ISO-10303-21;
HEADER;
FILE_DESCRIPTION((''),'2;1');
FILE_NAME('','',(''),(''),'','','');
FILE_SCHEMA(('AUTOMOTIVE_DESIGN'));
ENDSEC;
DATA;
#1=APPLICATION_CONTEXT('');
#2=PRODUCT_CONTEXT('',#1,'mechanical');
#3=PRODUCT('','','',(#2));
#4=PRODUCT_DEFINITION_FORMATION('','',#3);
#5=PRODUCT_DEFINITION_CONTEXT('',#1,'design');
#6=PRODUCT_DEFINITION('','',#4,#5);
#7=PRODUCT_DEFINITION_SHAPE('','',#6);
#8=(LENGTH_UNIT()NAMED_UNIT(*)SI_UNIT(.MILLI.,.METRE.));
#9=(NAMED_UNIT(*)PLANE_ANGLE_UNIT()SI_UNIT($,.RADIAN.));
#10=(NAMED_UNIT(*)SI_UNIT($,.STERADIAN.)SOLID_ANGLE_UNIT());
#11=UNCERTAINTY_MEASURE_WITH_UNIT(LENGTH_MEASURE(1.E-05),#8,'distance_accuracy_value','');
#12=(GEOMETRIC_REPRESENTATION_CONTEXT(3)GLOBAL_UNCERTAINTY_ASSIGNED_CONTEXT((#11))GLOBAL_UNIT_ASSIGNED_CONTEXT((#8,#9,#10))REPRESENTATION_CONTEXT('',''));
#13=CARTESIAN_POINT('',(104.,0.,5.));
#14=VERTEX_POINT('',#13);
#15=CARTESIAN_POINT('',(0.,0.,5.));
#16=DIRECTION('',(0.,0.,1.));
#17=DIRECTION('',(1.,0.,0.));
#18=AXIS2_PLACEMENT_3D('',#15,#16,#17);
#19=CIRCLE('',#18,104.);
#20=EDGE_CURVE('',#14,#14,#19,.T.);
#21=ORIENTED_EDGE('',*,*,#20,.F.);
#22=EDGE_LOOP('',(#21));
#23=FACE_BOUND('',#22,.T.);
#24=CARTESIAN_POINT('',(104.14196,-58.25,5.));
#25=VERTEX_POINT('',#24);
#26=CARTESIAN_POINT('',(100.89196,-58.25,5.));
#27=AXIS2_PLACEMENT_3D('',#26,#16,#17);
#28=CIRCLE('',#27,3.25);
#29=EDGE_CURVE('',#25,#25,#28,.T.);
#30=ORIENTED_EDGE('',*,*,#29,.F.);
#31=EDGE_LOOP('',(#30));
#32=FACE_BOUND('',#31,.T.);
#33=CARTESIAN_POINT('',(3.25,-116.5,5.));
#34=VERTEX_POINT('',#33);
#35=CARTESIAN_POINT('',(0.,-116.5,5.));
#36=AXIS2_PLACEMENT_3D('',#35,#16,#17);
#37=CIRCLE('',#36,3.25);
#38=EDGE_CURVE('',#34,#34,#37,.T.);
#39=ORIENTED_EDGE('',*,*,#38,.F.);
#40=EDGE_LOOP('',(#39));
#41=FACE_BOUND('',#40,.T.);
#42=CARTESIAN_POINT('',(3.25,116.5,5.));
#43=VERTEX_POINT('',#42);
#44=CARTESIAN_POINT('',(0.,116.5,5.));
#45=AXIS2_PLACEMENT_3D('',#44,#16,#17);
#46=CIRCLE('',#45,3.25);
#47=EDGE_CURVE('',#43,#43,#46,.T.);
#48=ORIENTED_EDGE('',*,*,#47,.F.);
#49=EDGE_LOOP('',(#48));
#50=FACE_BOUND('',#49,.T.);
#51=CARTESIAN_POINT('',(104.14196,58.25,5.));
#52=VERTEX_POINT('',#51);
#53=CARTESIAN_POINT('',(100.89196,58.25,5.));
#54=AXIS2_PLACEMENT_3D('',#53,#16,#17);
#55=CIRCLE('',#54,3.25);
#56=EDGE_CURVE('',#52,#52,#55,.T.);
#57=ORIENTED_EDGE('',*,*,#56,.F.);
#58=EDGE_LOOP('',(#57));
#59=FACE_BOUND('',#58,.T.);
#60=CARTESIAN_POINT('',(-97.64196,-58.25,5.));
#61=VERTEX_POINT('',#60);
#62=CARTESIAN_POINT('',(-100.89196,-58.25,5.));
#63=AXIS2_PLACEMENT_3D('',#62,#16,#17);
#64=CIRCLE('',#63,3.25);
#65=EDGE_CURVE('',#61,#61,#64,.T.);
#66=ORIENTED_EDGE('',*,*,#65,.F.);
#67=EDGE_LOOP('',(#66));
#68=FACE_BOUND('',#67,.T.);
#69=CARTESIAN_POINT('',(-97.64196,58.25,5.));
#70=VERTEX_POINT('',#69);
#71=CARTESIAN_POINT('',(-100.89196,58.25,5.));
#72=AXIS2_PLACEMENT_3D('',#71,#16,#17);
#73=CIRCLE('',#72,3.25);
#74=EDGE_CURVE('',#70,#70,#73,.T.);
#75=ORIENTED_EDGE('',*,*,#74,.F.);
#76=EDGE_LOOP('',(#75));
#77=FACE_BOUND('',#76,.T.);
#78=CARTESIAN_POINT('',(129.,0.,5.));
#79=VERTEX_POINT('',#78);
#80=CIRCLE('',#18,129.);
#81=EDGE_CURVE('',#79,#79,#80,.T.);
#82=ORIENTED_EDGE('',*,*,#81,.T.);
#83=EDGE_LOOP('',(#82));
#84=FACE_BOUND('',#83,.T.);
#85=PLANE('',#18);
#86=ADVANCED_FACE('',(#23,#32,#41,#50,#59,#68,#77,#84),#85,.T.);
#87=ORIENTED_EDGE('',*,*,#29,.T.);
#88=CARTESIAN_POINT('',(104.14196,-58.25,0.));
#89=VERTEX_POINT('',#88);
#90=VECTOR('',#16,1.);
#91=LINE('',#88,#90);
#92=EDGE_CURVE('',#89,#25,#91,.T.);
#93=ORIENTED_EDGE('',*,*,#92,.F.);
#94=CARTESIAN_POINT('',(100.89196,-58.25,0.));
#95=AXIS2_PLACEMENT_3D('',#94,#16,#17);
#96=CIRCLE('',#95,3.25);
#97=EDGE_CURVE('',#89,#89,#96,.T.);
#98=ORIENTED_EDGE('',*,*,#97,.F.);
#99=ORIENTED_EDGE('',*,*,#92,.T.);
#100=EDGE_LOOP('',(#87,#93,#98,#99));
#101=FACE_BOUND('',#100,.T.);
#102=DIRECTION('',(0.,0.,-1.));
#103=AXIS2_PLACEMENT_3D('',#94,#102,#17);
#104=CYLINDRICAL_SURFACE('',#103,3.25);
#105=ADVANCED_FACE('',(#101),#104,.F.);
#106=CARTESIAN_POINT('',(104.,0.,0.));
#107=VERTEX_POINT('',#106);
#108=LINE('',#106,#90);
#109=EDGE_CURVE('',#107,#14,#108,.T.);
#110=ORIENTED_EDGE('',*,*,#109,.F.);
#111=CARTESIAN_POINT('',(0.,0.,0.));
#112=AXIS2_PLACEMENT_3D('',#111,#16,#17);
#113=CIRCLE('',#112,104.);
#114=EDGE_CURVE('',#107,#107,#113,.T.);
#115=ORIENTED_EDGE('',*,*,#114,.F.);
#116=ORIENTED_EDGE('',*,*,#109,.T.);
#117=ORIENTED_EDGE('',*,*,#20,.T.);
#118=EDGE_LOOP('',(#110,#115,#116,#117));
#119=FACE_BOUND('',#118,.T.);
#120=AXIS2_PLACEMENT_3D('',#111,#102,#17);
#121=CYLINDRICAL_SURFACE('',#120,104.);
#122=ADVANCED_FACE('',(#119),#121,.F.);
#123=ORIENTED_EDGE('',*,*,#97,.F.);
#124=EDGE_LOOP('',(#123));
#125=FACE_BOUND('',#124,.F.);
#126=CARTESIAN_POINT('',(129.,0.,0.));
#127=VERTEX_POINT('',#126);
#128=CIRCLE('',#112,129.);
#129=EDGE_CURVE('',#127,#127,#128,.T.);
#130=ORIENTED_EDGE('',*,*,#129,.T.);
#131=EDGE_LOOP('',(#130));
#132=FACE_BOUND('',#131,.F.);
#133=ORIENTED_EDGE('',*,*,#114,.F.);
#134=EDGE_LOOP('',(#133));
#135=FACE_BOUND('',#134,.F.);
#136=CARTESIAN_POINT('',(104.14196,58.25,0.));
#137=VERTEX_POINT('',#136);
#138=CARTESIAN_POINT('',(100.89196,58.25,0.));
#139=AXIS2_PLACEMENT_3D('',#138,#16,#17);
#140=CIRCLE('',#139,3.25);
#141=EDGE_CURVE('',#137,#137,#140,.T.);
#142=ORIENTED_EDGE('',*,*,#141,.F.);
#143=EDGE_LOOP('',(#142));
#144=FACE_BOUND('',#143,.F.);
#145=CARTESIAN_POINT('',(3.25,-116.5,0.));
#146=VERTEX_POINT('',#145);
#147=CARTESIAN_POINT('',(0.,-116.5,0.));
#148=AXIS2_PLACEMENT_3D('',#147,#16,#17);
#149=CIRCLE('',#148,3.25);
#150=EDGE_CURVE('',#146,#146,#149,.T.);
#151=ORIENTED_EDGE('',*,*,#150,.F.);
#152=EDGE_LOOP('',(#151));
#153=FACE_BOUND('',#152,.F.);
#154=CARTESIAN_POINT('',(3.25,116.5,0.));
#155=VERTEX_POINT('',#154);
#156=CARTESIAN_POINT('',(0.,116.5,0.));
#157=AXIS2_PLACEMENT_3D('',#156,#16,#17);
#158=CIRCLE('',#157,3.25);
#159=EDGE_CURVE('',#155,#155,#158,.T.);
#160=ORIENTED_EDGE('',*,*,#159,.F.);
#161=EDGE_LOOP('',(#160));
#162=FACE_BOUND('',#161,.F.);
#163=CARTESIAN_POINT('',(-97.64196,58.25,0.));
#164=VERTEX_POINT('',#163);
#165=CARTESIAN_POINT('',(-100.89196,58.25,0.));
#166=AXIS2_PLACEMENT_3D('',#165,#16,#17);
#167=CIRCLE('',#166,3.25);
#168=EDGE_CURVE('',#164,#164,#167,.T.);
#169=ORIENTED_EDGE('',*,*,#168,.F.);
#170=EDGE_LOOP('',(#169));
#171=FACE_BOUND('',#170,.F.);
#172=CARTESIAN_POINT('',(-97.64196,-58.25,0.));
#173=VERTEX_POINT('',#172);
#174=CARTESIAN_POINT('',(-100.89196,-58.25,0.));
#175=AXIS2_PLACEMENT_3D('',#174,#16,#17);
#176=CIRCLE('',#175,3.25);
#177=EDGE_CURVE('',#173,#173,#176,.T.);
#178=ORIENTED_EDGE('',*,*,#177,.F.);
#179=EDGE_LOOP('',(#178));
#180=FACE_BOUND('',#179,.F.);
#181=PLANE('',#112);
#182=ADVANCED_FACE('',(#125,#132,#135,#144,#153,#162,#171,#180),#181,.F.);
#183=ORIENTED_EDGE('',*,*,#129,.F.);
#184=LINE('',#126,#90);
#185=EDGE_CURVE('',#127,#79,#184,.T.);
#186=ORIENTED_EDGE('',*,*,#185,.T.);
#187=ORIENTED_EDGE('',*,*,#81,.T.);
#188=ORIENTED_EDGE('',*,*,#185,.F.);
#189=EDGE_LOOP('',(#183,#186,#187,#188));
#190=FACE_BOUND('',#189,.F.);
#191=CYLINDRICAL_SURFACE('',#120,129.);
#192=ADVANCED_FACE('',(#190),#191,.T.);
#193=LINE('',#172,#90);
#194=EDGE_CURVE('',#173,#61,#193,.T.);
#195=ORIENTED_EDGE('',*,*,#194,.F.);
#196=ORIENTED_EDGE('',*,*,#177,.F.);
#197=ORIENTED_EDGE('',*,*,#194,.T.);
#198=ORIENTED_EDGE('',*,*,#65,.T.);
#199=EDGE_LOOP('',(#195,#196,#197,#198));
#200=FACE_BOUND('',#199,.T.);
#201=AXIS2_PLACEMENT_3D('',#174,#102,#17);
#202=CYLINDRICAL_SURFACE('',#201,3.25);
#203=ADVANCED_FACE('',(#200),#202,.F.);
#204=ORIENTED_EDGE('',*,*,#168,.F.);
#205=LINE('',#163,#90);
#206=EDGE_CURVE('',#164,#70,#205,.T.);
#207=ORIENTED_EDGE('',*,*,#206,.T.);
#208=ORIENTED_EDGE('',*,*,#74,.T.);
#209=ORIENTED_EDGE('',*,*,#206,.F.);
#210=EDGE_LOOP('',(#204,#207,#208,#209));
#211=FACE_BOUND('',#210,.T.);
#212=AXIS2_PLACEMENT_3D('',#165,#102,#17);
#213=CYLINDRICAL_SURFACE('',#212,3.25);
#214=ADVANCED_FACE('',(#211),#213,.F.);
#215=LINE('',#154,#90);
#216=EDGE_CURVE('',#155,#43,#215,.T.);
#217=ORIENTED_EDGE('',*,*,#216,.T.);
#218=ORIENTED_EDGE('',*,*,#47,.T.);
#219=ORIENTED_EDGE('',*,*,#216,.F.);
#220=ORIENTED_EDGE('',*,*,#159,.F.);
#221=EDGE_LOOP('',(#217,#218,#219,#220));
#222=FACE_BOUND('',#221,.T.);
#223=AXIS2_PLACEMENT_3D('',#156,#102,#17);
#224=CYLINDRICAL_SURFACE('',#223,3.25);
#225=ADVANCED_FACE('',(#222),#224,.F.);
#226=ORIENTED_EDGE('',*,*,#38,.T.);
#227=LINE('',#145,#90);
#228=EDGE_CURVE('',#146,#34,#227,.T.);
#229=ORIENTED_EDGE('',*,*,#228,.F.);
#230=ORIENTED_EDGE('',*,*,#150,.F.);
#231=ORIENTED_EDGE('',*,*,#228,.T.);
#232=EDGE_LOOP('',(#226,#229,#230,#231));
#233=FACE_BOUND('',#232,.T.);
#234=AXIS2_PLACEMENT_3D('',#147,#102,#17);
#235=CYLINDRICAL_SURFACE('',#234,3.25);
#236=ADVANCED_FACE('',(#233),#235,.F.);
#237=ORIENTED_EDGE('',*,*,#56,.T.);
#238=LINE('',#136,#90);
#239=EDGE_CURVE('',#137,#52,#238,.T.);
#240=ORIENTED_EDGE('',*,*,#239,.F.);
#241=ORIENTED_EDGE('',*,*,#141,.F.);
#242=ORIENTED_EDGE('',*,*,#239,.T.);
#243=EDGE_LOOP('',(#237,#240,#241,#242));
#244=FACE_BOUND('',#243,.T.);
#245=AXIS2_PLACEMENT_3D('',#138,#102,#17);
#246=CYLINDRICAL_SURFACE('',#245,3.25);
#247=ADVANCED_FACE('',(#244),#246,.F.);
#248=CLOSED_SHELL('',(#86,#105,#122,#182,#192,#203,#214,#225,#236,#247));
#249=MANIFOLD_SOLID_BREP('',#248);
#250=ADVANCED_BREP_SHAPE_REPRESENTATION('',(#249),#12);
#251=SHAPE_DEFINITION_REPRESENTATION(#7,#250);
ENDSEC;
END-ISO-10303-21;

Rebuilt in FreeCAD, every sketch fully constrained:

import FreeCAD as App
import Part
import Sketcher
Q = App.Units.Quantity

doc = App.newDocument("Part")
body = doc.addObject("PartDesign::Body", "Body")

# Sketch on XY plane
sketch1 = doc.addObject("Sketcher::SketchObject", "Sketch")
body.addObject(sketch1)
sketch1.AttachmentSupport = (doc.XY_Plane, [""])
sketch1.MapMode = "FlatFace"
sketch1.addGeometry([
    Part.Circle(App.Vector(0, 0, 0), App.Vector(0, 0, 1), 129),  # 0
    Part.Circle(App.Vector(-100.9, -58.2, 0), App.Vector(0, 0, 1), 3.2),  # 1
    Part.Circle(App.Vector(0, -116.5, 0), App.Vector(0, 0, 1), 3.2),  # 2
    Part.Circle(App.Vector(0, 0, 0), App.Vector(0, 0, 1), 104),  # 3
    Part.Circle(App.Vector(100.9, -58.2, 0), App.Vector(0, 0, 1), 3.2),  # 4
    Part.Circle(App.Vector(-100.9, 58.2, 0), App.Vector(0, 0, 1), 3.2),  # 5
    Part.Circle(App.Vector(100.9, 58.2, 0), App.Vector(0, 0, 1), 3.2),  # 6
    Part.Circle(App.Vector(0, 116.5, 0), App.Vector(0, 0, 1), 3.2),  # 7
], False)
sketch1.addConstraint([
    Sketcher.Constraint("Coincident", 0, 3, -1, 1),
    Sketcher.Constraint("Coincident", 3, 3, -1, 1),
    Sketcher.Constraint("Equal", 1, 2),
    Sketcher.Constraint("Equal", 2, 4),
    Sketcher.Constraint("Equal", 4, 5),
    Sketcher.Constraint("Equal", 5, 6),
    Sketcher.Constraint("Equal", 6, 7),
    Sketcher.Constraint("Symmetric", 4, 3, 5, 3, -1, 1),
    Sketcher.Constraint("Symmetric", 1, 3, 6, 3, -1, 1),
    Sketcher.Constraint("Symmetric", 2, 3, 7, 3, -1, 1),
    Sketcher.Constraint("Symmetric", 1, 3, 4, 3, -2),
    Sketcher.Constraint("PointOnObject", 2, 3, -2),
    Sketcher.Constraint("Diameter", 0, Q("258 mm")),
    Sketcher.Constraint("Diameter", 3, Q("208 mm")),
    Sketcher.Constraint("Diameter", 1, Q("6.5 mm")),
    Sketcher.Constraint("DistanceY", 2, 3, -1, 1, Q("116.5 mm")),
    Sketcher.Constraint("DistanceY", 1, 3, 5, 3, Q("116.5 mm")),
    Sketcher.Constraint("DistanceX", 1, 3, -1, 1, Q("100.89196 mm")),
])
pad1 = doc.addObject("PartDesign::Pad", "Pad")
body.addObject(pad1)
pad1.Profile = sketch1
pad1.Length = 5

doc.recompute()
